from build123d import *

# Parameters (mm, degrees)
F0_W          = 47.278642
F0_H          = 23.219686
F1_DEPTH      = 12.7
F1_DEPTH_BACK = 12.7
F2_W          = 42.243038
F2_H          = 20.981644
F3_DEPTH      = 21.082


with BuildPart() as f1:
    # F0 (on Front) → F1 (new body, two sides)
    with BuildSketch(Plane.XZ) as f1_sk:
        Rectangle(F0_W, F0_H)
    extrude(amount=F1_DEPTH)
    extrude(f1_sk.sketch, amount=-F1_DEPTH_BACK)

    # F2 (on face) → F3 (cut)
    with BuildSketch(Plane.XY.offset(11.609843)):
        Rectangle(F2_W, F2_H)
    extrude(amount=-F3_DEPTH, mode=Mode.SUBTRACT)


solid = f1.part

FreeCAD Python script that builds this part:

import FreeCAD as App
import Part
import Sketcher
Q = App.Units.Quantity


def add_polygon(sketch, points):
    """Adds a closed chain of lines whose ends are joined by coincident constraints."""
    first, n = sketch.GeometryCount, len(points)
    for a, b in zip(points, points[1:] + points[:1]):
        sketch.addGeometry(Part.LineSegment(App.Vector(*a, 0), App.Vector(*b, 0)), False)
    for i in range(n):
        sketch.addConstraint(Sketcher.Constraint("Coincident", first + i, 2, first + (i + 1) % n, 1))

doc = App.newDocument("Part")
params = doc.addObject("Spreadsheet::Sheet", "Params")
for row, (alias, value) in enumerate([
    ("pad1_length", "0.5 in"),
    ("pad1_length2", "0.5 in"),
    ("pocket1_length", "0.83 in"),
], start=1):
    params.set(f"A{row}", alias)
    params.set(f"B{row}", "=" + value)
    params.setAlias(f"B{row}", alias)

body = doc.addObject("PartDesign::Body", "Body")

# Sketch on XZ plane
sketch1 = body.newObject("Sketcher::SketchObject", "Sketch")
sketch1.AttachmentSupport = (doc.getObject("XZ_Plane"), [""])
sketch1.MapMode = "FlatFace"
add_polygon(sketch1, [(-24, 12), (-24, -12), (24, -12), (24, 12)])  # lines 0-3
sketch1.addConstraint([
    Sketcher.Constraint("Vertical", 0),
    Sketcher.Constraint("Horizontal", 1),
    Sketcher.Constraint("Vertical", 2),
    Sketcher.Constraint("Horizontal", 3),
    Sketcher.Constraint("Symmetric", 0, 2, 2, 2, -1, 1),
    Sketcher.Constraint("DistanceX", 1, 1, 1, 2, Q("47.278642 mm")),
    Sketcher.Constraint("DistanceY", 0, 2, 0, 1, Q("23.219686 mm")),
])
pad1 = body.newObject("PartDesign::Pad", "Pad")
pad1.Profile = sketch1
pad1.Type = "TwoLengths"
pad1.setExpression("Length", "Params.pad1_length")
pad1.setExpression("Length2", "Params.pad1_length2")

# Sketch on XY plane
sketch2 = body.newObject("Sketcher::SketchObject", "Sketch001")
sketch2.AttachmentSupport = (doc.getObject("XY_Plane"), [""])
sketch2.MapMode = "FlatFace"
sketch2.AttachmentOffset = App.Placement(App.Vector(0, 0, 11.609843), App.Rotation())
add_polygon(sketch2, [(-21, 10), (-21, -10), (21, -10), (21, 10)])  # lines 0-3
sketch2.addConstraint([
    Sketcher.Constraint("Vertical", 0),
    Sketcher.Constraint("Horizontal", 1),
    Sketcher.Constraint("Vertical", 2),
    Sketcher.Constraint("Horizontal", 3),
    Sketcher.Constraint("Symmetric", 0, 2, 2, 2, -1, 1),
    Sketcher.Constraint("DistanceX", 1, 1, 1, 2, Q("42.243038 mm")),
    Sketcher.Constraint("DistanceY", 0, 2, 0, 1, Q("20.981644 mm")),
])
pocket1 = body.newObject("PartDesign::Pocket", "Pocket")
pocket1.Profile = sketch2
pocket1.setExpression("Length", "Params.pocket1_length")

doc.recompute()
